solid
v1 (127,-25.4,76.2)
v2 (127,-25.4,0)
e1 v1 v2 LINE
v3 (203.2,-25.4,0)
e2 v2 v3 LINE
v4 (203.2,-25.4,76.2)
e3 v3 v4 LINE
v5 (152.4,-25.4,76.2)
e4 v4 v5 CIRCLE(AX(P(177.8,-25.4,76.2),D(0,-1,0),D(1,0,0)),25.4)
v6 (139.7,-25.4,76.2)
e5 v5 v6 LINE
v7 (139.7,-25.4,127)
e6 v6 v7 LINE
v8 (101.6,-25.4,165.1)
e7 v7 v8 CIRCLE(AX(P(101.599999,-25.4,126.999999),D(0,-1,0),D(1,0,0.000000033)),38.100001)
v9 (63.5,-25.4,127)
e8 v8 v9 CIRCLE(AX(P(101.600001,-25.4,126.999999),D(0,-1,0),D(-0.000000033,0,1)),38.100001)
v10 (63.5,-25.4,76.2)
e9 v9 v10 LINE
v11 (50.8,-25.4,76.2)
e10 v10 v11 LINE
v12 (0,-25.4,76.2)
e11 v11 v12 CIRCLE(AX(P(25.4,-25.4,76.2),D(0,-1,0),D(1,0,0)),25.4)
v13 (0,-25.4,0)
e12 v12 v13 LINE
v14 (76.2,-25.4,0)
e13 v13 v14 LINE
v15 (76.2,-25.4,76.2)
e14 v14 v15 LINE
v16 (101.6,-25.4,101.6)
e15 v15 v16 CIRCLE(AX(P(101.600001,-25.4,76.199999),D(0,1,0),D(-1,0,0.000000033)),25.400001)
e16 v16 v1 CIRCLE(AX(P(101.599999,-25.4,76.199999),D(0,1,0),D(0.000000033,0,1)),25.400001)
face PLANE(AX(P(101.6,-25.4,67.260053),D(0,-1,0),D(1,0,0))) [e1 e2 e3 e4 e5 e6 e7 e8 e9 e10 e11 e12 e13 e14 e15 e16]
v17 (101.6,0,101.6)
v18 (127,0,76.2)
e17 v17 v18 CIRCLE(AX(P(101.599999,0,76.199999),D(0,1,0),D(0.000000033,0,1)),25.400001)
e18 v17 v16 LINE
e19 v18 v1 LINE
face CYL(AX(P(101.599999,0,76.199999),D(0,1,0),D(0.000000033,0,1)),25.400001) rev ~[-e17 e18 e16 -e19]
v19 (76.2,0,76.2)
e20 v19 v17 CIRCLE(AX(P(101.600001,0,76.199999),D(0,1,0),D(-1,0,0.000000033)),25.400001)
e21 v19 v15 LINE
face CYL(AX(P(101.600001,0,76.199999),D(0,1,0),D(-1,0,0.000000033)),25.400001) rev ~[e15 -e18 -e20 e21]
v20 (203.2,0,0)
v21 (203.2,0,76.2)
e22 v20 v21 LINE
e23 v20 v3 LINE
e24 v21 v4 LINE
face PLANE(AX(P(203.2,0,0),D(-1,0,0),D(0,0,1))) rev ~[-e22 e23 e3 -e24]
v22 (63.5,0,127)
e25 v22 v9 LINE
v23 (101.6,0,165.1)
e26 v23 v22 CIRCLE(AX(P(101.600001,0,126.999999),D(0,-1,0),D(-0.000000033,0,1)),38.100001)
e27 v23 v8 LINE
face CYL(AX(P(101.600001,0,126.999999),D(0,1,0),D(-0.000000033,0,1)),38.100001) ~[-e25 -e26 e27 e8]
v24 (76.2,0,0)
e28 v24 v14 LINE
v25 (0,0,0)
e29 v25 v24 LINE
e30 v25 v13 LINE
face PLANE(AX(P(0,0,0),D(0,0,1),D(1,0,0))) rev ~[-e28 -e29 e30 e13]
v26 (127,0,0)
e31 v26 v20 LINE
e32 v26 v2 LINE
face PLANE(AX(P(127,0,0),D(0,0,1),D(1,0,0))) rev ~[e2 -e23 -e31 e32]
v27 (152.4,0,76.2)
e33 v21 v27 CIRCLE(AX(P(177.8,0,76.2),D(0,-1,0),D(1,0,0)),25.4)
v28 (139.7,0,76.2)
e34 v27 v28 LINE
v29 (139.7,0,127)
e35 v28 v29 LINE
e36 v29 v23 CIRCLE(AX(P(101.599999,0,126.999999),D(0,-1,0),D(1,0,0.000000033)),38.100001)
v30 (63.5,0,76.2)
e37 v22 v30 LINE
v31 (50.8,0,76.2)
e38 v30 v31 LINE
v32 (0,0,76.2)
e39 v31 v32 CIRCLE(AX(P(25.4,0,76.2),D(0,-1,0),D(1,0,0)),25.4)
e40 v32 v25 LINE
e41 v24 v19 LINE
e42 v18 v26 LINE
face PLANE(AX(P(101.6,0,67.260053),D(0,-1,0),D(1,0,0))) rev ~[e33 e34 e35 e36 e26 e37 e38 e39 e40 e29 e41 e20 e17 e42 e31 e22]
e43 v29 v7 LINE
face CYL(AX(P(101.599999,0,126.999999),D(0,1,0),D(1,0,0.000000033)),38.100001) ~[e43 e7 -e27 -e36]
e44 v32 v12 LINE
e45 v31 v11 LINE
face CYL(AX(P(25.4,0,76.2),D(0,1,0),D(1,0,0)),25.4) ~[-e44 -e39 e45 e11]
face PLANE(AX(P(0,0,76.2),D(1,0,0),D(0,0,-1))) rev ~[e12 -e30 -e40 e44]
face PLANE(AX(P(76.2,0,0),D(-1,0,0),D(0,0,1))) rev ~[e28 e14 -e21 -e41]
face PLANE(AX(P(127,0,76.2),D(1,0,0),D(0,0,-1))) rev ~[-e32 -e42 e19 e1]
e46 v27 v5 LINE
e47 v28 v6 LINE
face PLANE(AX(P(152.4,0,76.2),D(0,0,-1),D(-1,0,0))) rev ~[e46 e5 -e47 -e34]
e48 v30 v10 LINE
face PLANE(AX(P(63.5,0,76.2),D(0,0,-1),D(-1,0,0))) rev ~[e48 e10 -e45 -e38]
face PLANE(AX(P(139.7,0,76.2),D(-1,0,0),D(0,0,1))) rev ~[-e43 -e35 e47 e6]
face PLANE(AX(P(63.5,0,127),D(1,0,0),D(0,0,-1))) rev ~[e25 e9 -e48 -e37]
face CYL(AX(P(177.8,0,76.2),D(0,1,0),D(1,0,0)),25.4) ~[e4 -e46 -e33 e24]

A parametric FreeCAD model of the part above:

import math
import FreeCAD as App
import Part
import Sketcher

V = App.Vector
Q = App.Units.Quantity

doc = App.newDocument("Part")
body = doc.addObject("PartDesign::Body", "Body")

# Sketch on XZ plane
sketch1 = body.newObject("Sketcher::SketchObject", "Sketch")
sketch1.AttachmentSupport = (doc.getObject("XZ_Plane"), [""])
sketch1.MapMode = "FlatFace"
sketch1.addGeometry([
    Part.LineSegment(V(0, 76, 0), V(0, 0, 0)),  # 0
    Part.LineSegment(V(0, 0, 0), V(76, 0, 0)),  # 1
    Part.LineSegment(V(76, 0, 0), V(76, 76, 0)),  # 2
    Part.ArcOfCircle(Part.Circle(V(102, 76, 0), V(0, 0, 1), 25), math.radians(90), math.radians(180)),  # 3
    Part.ArcOfCircle(Part.Circle(V(102, 76, 0), V(0, 0, 1), 25), math.radians(0), math.radians(90)),  # 4
    Part.LineSegment(V(127, 76, 0), V(127, 0, 0)),  # 5
    Part.LineSegment(V(127, 0, 0), V(203, 0, 0)),  # 6
    Part.LineSegment(V(203, 0, 0), V(203, 76, 0)),  # 7
    Part.ArcOfCircle(Part.Circle(V(178, 76, 0), V(0, 0, 1), 25), math.radians(0), math.radians(180)),  # 8
    Part.LineSegment(V(152, 76, 0), V(140, 76, 0)),  # 9
    Part.LineSegment(V(140, 76, 0), V(140, 127, 0)),  # 10
    Part.ArcOfCircle(Part.Circle(V(102, 127, 0), V(0, 0, 1), 38), math.radians(0), math.radians(90)),  # 11
    Part.ArcOfCircle(Part.Circle(V(102, 127, 0), V(0, 0, 1), 38), math.radians(90), math.radians(180)),  # 12
    Part.LineSegment(V(64, 127, 0), V(64, 76, 0)),  # 13
    Part.LineSegment(V(64, 76, 0), V(51, 76, 0)),  # 14
    Part.ArcOfCircle(Part.Circle(V(25, 76, 0), V(0, 0, 1), 25), math.radians(0), math.radians(180)),  # 15
], False)
sketch1.addConstraint([
    Sketcher.Constraint("Coincident", 0, 2, 1, 1),
    Sketcher.Constraint("Coincident", 1, 2, 2, 1),
    Sketcher.Constraint("Tangent", 2, 2, 3, 2),
    Sketcher.Constraint("Tangent", 3, 1, 4, 2),
    Sketcher.Constraint("Tangent", 4, 1, 5, 1),
    Sketcher.Constraint("Coincident", 5, 2, 6, 1),
    Sketcher.Constraint("Coincident", 6, 2, 7, 1),
    Sketcher.Constraint("Tangent", 7, 2, 8, 1),
    Sketcher.Constraint("Coincident", 8, 2, 9, 1),
    Sketcher.Constraint("Coincident", 9, 2, 10, 1),
    Sketcher.Constraint("Tangent", 10, 2, 11, 1),
    Sketcher.Constraint("Tangent", 11, 2, 12, 1),
    Sketcher.Constraint("Tangent", 12, 2, 13, 1),
    Sketcher.Constraint("Coincident", 13, 2, 14, 1),
    Sketcher.Constraint("Coincident", 14, 2, 15, 1),
    Sketcher.Constraint("Tangent", 15, 2, 0, 1),
    Sketcher.Constraint("Vertical", 0),
    Sketcher.Constraint("Horizontal", 1),
    Sketcher.Constraint("Vertical", 2),
    Sketcher.Constraint("Vertical", 5),
    Sketcher.Constraint("Horizontal", 6),
    Sketcher.Constraint("Vertical", 7),
    Sketcher.Constraint("Horizontal", 9),
    Sketcher.Constraint("Vertical", 10),
    Sketcher.Constraint("Vertical", 13),
    Sketcher.Constraint("Horizontal", 14),
    Sketcher.Constraint("Coincident", 0, 2, -1, 1),
    Sketcher.Constraint("Equal", 3, 4),
    Sketcher.Constraint("Equal", 4, 8),
    Sketcher.Constraint("Equal", 11, 12),
    Sketcher.Constraint("Equal", 8, 15),
    Sketcher.Constraint("PointOnObject", 5, 2, -1),
    Sketcher.Constraint("Horizontal", 4, 3, 8, 3),
    Sketcher.Constraint("Horizontal", 8, 3, 15, 3),
    Sketcher.Constraint("Horizontal", 7, 2, 8, 2),
    Sketcher.Constraint("Horizontal", 9, 2, 13, 2),
    Sketcher.Constraint("Vertical", 4, 3, 11, 3),
    Sketcher.Constraint("Vertical", 12, 3, 3, 1),
    Sketcher.Constraint("Vertical", 3, 1, 11, 2),
    Sketcher.Constraint("Equal", 1, 6),
    Sketcher.Constraint("Equal", 6, 0),
    Sketcher.Constraint("Radius", 3, Q("1 in")),
    Sketcher.Constraint("Radius", 11, Q("1.5 in")),
    Sketcher.Constraint("DistanceX", 1, 1, 1, 2, Q("3 in")),
    Sketcher.Constraint("DistanceY", 10, 1, 10, 2, Q("2 in")),
])
pad1 = body.newObject("PartDesign::Pad", "Pad")
pad1.Profile = sketch1
pad1.Length = Q("1 in")

doc.recompute()
